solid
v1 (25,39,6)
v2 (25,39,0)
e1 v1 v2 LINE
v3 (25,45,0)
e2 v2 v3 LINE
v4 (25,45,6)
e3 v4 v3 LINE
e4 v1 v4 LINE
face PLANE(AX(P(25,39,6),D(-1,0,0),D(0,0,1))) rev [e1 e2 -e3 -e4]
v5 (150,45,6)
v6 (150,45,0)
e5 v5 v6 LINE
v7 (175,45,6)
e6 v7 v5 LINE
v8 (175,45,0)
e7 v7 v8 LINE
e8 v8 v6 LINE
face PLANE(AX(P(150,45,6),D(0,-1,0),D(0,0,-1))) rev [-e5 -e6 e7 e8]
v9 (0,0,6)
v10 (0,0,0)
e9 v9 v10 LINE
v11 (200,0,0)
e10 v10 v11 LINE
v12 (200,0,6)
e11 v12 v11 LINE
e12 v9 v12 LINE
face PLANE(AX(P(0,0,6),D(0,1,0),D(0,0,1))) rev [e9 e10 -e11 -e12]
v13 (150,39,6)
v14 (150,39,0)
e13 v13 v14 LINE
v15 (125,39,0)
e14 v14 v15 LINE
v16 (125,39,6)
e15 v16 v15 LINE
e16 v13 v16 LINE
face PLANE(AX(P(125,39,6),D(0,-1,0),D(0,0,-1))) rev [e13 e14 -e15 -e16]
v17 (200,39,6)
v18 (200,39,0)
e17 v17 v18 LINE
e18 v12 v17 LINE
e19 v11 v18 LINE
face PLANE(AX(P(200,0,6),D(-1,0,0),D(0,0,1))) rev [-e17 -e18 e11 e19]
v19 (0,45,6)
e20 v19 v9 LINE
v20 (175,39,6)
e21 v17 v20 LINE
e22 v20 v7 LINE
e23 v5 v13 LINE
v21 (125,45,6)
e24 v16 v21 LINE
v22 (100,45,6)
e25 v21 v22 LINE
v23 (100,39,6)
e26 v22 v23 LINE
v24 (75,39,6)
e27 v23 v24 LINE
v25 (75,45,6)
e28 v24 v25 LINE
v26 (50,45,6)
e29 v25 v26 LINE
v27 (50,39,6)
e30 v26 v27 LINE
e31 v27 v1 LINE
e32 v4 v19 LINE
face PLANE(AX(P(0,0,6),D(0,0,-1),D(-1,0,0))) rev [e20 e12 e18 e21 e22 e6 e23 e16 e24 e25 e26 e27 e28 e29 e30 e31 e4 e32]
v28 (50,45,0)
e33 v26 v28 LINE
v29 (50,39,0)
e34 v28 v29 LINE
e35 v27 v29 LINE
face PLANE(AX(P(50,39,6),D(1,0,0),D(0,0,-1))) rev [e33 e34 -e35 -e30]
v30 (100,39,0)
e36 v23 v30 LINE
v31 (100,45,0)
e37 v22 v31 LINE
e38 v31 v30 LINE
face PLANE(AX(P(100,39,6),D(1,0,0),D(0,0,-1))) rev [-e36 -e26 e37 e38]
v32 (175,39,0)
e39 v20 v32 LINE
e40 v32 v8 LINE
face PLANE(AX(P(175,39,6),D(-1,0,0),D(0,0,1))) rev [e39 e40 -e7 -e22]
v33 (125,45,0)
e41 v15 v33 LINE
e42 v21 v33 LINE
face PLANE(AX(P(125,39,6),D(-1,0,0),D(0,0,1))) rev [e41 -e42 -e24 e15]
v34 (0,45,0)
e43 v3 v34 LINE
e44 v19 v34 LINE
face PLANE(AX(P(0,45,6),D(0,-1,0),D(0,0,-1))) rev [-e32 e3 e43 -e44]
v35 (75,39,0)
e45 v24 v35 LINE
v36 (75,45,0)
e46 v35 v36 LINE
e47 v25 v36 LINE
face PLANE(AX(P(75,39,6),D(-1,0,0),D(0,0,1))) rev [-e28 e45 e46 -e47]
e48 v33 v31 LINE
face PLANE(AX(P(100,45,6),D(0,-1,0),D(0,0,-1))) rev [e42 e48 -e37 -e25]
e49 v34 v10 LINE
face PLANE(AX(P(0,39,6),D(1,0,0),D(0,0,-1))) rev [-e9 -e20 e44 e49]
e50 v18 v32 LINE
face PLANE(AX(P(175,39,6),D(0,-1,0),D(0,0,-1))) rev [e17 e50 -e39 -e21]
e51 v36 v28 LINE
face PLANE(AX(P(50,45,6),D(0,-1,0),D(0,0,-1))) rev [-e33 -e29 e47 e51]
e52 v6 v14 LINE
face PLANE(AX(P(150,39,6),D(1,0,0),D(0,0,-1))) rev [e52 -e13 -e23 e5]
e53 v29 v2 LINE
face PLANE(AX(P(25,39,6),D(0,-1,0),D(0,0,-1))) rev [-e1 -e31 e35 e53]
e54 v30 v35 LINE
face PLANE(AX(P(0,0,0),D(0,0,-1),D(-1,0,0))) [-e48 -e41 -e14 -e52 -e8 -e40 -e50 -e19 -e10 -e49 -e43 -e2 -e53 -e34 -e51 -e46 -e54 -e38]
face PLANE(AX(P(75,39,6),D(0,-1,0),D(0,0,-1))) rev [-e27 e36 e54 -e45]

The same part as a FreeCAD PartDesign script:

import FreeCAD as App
import Part
import Sketcher

V = App.Vector


def add_polygon(sketch, points):
    """Adds a closed chain of lines whose ends are joined by coincident constraints."""
    first, n = sketch.GeometryCount, len(points)
    for a, b in zip(points, points[1:] + points[:1]):
        sketch.addGeometry(Part.LineSegment(App.Vector(*a, 0), App.Vector(*b, 0)), False)
    for i in range(n):
        sketch.addConstraint(Sketcher.Constraint("Coincident", first + i, 2, first + (i + 1) % n, 1))

doc = App.newDocument("Part")
body = doc.addObject("PartDesign::Body", "Body")

# Sketch on XY plane
sketch1 = body.newObject("Sketcher::SketchObject", "Sketch")
sketch1.AttachmentSupport = (doc.getObject("XY_Plane"), [""])
sketch1.MapMode = "FlatFace"
add_polygon(sketch1, [(50, 45), (50, 39), (25, 39), (25, 45), (0, 45), (0, 0), (200, 0), (200, 39), (175, 39), (175, 45), (150, 45), (150, 39), (125, 39), (125, 45), (100, 45), (100, 39), (75, 39), (75, 45)])  # lines 0-17
sketch1.addConstraint([
    Sketcher.Constraint("Vertical", 0),
    Sketcher.Constraint("Horizontal", 1),
    Sketcher.Constraint("Vertical", 2),
    Sketcher.Constraint("Horizontal", 3),
    Sketcher.Constraint("Vertical", 4),
    Sketcher.Constraint("Horizontal", 5),
    Sketcher.Constraint("Vertical", 6),
    Sketcher.Constraint("Horizontal", 7),
    Sketcher.Constraint("Vertical", 8),
    Sketcher.Constraint("Horizontal", 9),
    Sketcher.Constraint("Vertical", 10),
    Sketcher.Constraint("Horizontal", 11),
    Sketcher.Constraint("Vertical", 12),
    Sketcher.Constraint("Horizontal", 13),
    Sketcher.Constraint("Vertical", 14),
    Sketcher.Constraint("Horizontal", 15),
    Sketcher.Constraint("Vertical", 16),
    Sketcher.Constraint("Horizontal", 17),
    Sketcher.Constraint("Coincident", 4, 2, -1, 1),
    Sketcher.Constraint("Horizontal", 1, 2, 6, 2),
    Sketcher.Constraint("Horizontal", 3, 2, 8, 2),
    Sketcher.Constraint("Horizontal", 7, 2, 10, 2),
    Sketcher.Constraint("Horizontal", 9, 2, 12, 2),
    Sketcher.Constraint("Horizontal", 11, 2, 14, 2),
    Sketcher.Constraint("Horizontal", 13, 2, 16, 2),
    Sketcher.Constraint("Equal", 1, 3),
    Sketcher.Constraint("Equal", 3, 7),
    Sketcher.Constraint("Equal", 7, 9),
    Sketcher.Constraint("Equal", 9, 11),
    Sketcher.Constraint("Equal", 11, 13),
    Sketcher.Constraint("Equal", 13, 15),
    Sketcher.Constraint("Equal", 15, 17),
    Sketcher.Constraint("DistanceX", 1, 2, 1, 1, 25.0),
    Sketcher.Constraint("DistanceY", 0, 2, 0, 1, 6.0),
    Sketcher.Constraint("DistanceY", 4, 2, 4, 1, 45.0),
])
pad1 = body.newObject("PartDesign::Pad", "Pad")
pad1.Profile = sketch1
pad1.Length = 6

doc.recompute()
